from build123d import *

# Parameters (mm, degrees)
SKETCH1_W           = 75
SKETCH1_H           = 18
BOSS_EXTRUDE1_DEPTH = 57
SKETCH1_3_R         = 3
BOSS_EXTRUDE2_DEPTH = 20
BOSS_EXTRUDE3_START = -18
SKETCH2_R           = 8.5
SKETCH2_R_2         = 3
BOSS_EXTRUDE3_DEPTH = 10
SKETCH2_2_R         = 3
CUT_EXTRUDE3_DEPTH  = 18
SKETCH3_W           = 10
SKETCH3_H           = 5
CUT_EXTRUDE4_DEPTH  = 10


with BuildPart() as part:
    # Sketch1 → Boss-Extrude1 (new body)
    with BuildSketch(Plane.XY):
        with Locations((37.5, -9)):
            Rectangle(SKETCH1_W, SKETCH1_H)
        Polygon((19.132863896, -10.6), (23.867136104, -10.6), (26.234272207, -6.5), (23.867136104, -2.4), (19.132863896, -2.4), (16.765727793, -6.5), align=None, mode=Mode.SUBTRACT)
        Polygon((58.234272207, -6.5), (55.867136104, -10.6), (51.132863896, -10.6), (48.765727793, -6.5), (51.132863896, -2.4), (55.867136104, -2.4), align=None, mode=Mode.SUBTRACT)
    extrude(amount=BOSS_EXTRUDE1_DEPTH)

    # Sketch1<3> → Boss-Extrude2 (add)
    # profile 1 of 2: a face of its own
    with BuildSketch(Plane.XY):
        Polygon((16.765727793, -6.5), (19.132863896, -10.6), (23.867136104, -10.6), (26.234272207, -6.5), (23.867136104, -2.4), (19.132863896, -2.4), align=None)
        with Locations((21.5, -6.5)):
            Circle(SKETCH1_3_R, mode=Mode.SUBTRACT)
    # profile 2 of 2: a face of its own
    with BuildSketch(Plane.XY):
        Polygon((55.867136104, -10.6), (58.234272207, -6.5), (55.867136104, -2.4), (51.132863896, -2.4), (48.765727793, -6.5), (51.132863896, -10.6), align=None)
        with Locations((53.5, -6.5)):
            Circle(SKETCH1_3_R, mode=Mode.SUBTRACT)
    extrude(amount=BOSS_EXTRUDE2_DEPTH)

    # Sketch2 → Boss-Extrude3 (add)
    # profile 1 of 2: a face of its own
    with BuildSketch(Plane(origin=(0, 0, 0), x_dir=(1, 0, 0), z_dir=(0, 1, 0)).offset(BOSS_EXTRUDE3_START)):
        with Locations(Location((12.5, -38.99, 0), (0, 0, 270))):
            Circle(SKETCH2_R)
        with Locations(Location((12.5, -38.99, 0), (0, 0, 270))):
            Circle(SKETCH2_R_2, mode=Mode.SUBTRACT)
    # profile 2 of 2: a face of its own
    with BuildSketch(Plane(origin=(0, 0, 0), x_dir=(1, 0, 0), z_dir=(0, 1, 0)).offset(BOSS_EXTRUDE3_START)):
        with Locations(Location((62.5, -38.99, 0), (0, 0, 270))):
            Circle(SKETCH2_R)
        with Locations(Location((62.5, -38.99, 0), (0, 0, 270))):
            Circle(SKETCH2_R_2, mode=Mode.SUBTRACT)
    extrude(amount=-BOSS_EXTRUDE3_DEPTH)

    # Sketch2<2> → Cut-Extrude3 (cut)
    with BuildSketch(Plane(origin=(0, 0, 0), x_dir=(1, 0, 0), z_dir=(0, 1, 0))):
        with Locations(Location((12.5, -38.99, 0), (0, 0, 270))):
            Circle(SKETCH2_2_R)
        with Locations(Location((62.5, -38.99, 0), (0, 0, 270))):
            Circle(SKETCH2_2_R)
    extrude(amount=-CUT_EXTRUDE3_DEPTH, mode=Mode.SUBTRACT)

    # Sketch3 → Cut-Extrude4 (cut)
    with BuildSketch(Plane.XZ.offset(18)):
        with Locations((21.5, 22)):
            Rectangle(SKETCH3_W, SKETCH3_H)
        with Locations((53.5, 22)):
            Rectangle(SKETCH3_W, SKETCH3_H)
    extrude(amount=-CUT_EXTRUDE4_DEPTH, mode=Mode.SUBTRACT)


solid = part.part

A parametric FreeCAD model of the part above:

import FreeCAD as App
import Part
import Sketcher
from FreeCAD import Vector
Q = App.Units.Quantity


def add_polygon(sketch, points):
    """Adds a closed chain of lines whose ends are joined by coincident constraints."""
    first, n = sketch.GeometryCount, len(points)
    for a, b in zip(points, points[1:] + points[:1]):
        sketch.addGeometry(Part.LineSegment(App.Vector(*a, 0), App.Vector(*b, 0)), False)
    for i in range(n):
        sketch.addConstraint(Sketcher.Constraint("Coincident", first + i, 2, first + (i + 1) % n, 1))

doc = App.newDocument("Part")
body = doc.addObject("PartDesign::Body", "Body")

sketch1 = body.newObject("Sketcher::SketchObject", "Sketch")
sketch1.AttachmentSupport = (doc.getObject("XY_Plane"), [""])
sketch1.MapMode = "FlatFace"
add_polygon(sketch1, [(0, 0), (0, -18), (75, -18), (75, 0)])
add_polygon(sketch1, [(23.867136, -10.6), (19.132864, -10.6), (16.765728, -6.5), (19.132864, -2.4), (23.867136, -2.4), (26.234272, -6.5)])
add_polygon(sketch1, [(55.867136, -2.4), (58.234272, -6.5), (55.867136, -10.6), (51.132864, -10.6), (48.765728, -6.5), (51.132864, -2.4)])
sketch1.addConstraint([
    Sketcher.Constraint("Vertical", 0),
    Sketcher.Constraint("Horizontal", 1),
    Sketcher.Constraint("Vertical", 2),
    Sketcher.Constraint("Horizontal", 3),
    Sketcher.Constraint("Horizontal", 4),
    Sketcher.Constraint("Horizontal", 7),
    Sketcher.Constraint("Horizontal", 12),
    Sketcher.Constraint("Horizontal", 15),
    Sketcher.Constraint("Coincident", 3, 2, -1, 1),
    Sketcher.Constraint("Parallel", 5, 8),
    Sketcher.Constraint("Parallel", 6, 9),
    Sketcher.Constraint("Parallel", 8, 10),
    Sketcher.Constraint("Parallel", 9, 11),
    Sketcher.Constraint("Parallel", 10, 13),
    Sketcher.Constraint("Parallel", 11, 14),
    Sketcher.Constraint("Horizontal", 5, 2, 8, 2),
    Sketcher.Constraint("Horizontal", 8, 2, 10, 2),
    Sketcher.Constraint("Horizontal", 9, 2, 11, 2),
    Sketcher.Constraint("Horizontal", 10, 2, 13, 2),
    Sketcher.Constraint("Horizontal", 7, 2, 14, 2),
    Sketcher.Constraint("Vertical", 4, 2, 6, 2),
    Sketcher.Constraint("Vertical", 7, 2, 9, 2),
    Sketcher.Constraint("Equal", 7, 12),
    Sketcher.Constraint("DistanceX", 1, 1, 1, 2, Q("75 mm")),
    Sketcher.Constraint("DistanceY", 0, 2, 0, 1, Q("18 mm")),
    Sketcher.Constraint("Angle", 5, Q("120 deg")),
    Sketcher.Constraint("DistanceX", 8, 2, 10, 2, Q("32 mm")),
    Sketcher.Constraint("DistanceY", 4, 2, -1, 1, Q("10.6 mm")),
    Sketcher.Constraint("DistanceY", 5, 2, -1, 1, Q("6.5 mm")),
    Sketcher.Constraint("DistanceX", 4, 2, 4, 1, Q("4.734272 mm")),
    Sketcher.Constraint("DistanceX", -1, 1, 4, 2, Q("19.132864 mm")),
])
pad1 = body.newObject("PartDesign::Pad", "Pad")
pad1.Profile = sketch1
pad1.Length = 57

sketch2 = body.newObject("Sketcher::SketchObject", "Sketch001")
sketch2.AttachmentSupport = (doc.getObject("XY_Plane"), [""])
sketch2.MapMode = "FlatFace"
add_polygon(sketch2, [(16.765728, -6.5), (19.132864, -10.6), (23.867136, -10.6), (26.234272, -6.5), (23.867136, -2.4), (19.132864, -2.4)])
sketch2.addGeometry(Part.Circle(Vector(21.5, -6.5, 0), Vector(0, 0, 1), 3), False)
add_polygon(sketch2, [(55.867136, -10.6), (58.234272, -6.5), (55.867136, -2.4), (51.132864, -2.4), (48.765728, -6.5), (51.132864, -10.6)])
sketch2.addGeometry(Part.Circle(Vector(53.5, -6.5, 0), Vector(0, 0, 1), 3), False)
sketch2.addConstraint([
    Sketcher.Constraint("Horizontal", 1),
    Sketcher.Constraint("Horizontal", 4),
    Sketcher.Constraint("Horizontal", 9),
    Sketcher.Constraint("Horizontal", 12),
    Sketcher.Constraint("Equal", 6, 13),
    Sketcher.Constraint("Parallel", 0, 3),
    Sketcher.Constraint("Parallel", 2, 5),
    Sketcher.Constraint("Parallel", 5, 7),
    Sketcher.Constraint("Parallel", 3, 8),
    Sketcher.Constraint("Parallel", 7, 10),
    Sketcher.Constraint("Parallel", 8, 11),
    Sketcher.Constraint("Horizontal", 6, 3, 13, 3),
    Sketcher.Constraint("Horizontal", 13, 3, 2, 2),
    Sketcher.Constraint("Horizontal", 2, 2, 5, 2),
    Sketcher.Constraint("Horizontal", 5, 2, 7, 2),
    Sketcher.Constraint("Horizontal", 4, 2, 8, 2),
    Sketcher.Constraint("Horizontal", 7, 2, 10, 2),
    Sketcher.Constraint("Horizontal", 1, 2, 11, 2),
    Sketcher.Constraint("Vertical", 1, 2, 3, 2),
    Sketcher.Constraint("Vertical", 0, 2, 4, 2),
    Sketcher.Constraint("Equal", 4, 9),
    Sketcher.Constraint("Diameter", 6, Q("6 mm")),
    Sketcher.Constraint("Angle", 0, Q("-60 deg")),
    Sketcher.Constraint("DistanceX", 6, 3, 13, 3, Q("32 mm")),
    Sketcher.Constraint("DistanceX", 2, 2, 7, 2, Q("32 mm")),
    Sketcher.Constraint("DistanceX", -1, 1, 6, 3, Q("21.5 mm")),
    Sketcher.Constraint("DistanceY", 6, 3, -1, 1, Q("6.5 mm")),
    Sketcher.Constraint("DistanceY", 0, 2, -1, 1, Q("10.6 mm")),
    Sketcher.Constraint("DistanceX", 1, 1, 1, 2, Q("4.734272 mm")),
    Sketcher.Constraint("DistanceX", -1, 1, 0, 2, Q("19.132864 mm")),
])
pad2 = body.newObject("PartDesign::Pad", "Pad001")
pad2.Profile = sketch2
pad2.Length = 20

sketch3 = body.newObject("Sketcher::SketchObject", "Sketch002")
sketch3.AttachmentSupport = (doc.getObject("XZ_Plane"), [""])
sketch3.MapMode = "FlatFace"
sketch3.AttachmentOffset = App.Placement(Vector(0, 0, 18), App.Rotation())
sketch3.addGeometry([
    Part.Circle(Vector(12.5, 38.99, 0), Vector(0, 0, 1), 8.5),
    Part.Circle(Vector(12.5, 38.99, 0), Vector(0, 0, 1), 3),
    Part.Circle(Vector(62.5, 38.99, 0), Vector(0, 0, 1), 8.5),
    Part.Circle(Vector(62.5, 38.99, 0), Vector(0, 0, 1), 3),
], False)
sketch3.addConstraint([
    Sketcher.Constraint("Coincident", 1, 3, 0, 3),
    Sketcher.Constraint("Coincident", 3, 3, 2, 3),
    Sketcher.Constraint("Equal", 0, 2),
    Sketcher.Constraint("Equal", 1, 3),
    Sketcher.Constraint("Horizontal", 1, 3, 2, 3),
    Sketcher.Constraint("Diameter", 0, Q("17 mm")),
    Sketcher.Constraint("Diameter", 1, Q("6 mm")),
    Sketcher.Constraint("DistanceX", 0, 3, 2, 3, Q("50 mm")),
    Sketcher.Constraint("DistanceX", -1, 1, 0, 3, Q("12.5 mm")),
    Sketcher.Constraint("DistanceY", -1, 1, 0, 3, Q("38.99 mm")),
])
pad3 = body.newObject("PartDesign::Pad", "Pad002")
pad3.Profile = sketch3
pad3.Length = 10

sketch4 = body.newObject("Sketcher::SketchObject", "Sketch003")
sketch4.AttachmentSupport = (doc.getObject("XZ_Plane"), [""])
sketch4.MapMode = "FlatFace"
sketch4.addGeometry([
    Part.Circle(Vector(12.5, 38.99, 0), Vector(0, 0, 1), 3),
    Part.Circle(Vector(62.5, 38.99, 0), Vector(0, 0, 1), 3),
], False)
sketch4.addConstraint([
    Sketcher.Constraint("Equal", 0, 1),
    Sketcher.Constraint("Horizontal", 0, 3, 1, 3),
    Sketcher.Constraint("Diameter", 0, Q("6 mm")),
    Sketcher.Constraint("DistanceX", 0, 3, 1, 3, Q("50 mm")),
    Sketcher.Constraint("DistanceX", -1, 1, 0, 3, Q("12.5 mm")),
    Sketcher.Constraint("DistanceY", -1, 1, 0, 3, Q("38.99 mm")),
])
pocket1 = body.newObject("PartDesign::Pocket", "Pocket")
pocket1.Profile = sketch4
pocket1.Length = 18
pocket1.Reversed = True

sketch5 = body.newObject("Sketcher::SketchObject", "Sketch004")
sketch5.AttachmentSupport = (doc.getObject("XZ_Plane"), [""])
sketch5.MapMode = "FlatFace"
sketch5.AttachmentOffset = App.Placement(Vector(0, 0, 18), App.Rotation())
add_polygon(sketch5, [(16.5, 24.5), (16.5, 19.5), (26.5, 19.5), (26.5, 24.5)])
add_polygon(sketch5, [(48.5, 24.5), (48.5, 19.5), (58.5, 19.5), (58.5, 24.5)])
sketch5.addConstraint([
    Sketcher.Constraint("Vertical", 0),
    Sketcher.Constraint("Horizontal", 1),
    Sketcher.Constraint("Vertical", 2),
    Sketcher.Constraint("Horizontal", 3),
    Sketcher.Constraint("Vertical", 4),
    Sketcher.Constraint("Horizontal", 5),
    Sketcher.Constraint("Vertical", 6),
    Sketcher.Constraint("Horizontal", 7),
    Sketcher.Constraint("Horizontal", 1, 2, 4, 2),
    Sketcher.Constraint("Horizontal", 3, 2, 6, 2),
    Sketcher.Constraint("Equal", 3, 5),
    Sketcher.Constraint("DistanceX", 1, 1, 1, 2, Q("10 mm")),
    Sketcher.Constraint("DistanceY", 0, 2, 0, 1, Q("5 mm")),
    Sketcher.Constraint("DistanceX", 1, 2, 4, 2, Q("22 mm")),
    Sketcher.Constraint("DistanceX", -1, 1, 0, 2, Q("16.5 mm")),
    Sketcher.Constraint("DistanceY", -1, 1, 0, 2, Q("19.5 mm")),
])
pocket2 = body.newObject("PartDesign::Pocket", "Pocket001")
pocket2.Profile = sketch5
pocket2.Length = 10

doc.recompute()
